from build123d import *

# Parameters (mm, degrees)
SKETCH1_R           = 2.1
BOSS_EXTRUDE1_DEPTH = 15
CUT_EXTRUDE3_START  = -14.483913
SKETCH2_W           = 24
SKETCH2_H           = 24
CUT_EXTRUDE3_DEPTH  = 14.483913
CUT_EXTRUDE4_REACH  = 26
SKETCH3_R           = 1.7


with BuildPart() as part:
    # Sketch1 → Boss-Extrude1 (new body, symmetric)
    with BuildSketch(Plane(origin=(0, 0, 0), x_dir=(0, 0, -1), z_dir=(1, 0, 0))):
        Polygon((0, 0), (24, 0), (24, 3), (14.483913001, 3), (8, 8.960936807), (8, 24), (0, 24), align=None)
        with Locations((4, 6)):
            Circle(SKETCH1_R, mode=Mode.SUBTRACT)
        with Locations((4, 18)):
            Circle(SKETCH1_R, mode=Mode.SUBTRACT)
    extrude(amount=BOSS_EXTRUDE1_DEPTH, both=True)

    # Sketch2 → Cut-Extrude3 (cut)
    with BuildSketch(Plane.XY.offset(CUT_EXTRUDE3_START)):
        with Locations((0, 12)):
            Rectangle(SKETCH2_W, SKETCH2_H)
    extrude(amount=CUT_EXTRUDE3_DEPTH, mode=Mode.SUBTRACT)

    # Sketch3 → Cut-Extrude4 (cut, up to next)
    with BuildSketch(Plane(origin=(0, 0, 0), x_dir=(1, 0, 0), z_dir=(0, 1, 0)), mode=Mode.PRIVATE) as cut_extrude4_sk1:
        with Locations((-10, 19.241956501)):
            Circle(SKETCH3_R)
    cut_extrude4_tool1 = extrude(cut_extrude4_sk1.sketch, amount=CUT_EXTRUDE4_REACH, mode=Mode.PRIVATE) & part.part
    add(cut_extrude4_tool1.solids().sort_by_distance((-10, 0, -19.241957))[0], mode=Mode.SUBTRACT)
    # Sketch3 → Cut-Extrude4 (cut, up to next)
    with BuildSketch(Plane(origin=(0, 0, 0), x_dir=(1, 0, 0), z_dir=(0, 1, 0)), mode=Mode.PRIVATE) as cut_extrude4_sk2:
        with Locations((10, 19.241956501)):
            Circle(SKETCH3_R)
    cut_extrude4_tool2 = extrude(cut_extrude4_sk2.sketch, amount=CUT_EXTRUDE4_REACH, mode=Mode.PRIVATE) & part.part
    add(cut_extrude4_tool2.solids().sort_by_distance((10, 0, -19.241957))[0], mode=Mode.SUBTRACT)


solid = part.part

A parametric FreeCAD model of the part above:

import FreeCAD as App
import Part
import Sketcher


def add_polygon(sketch, points):
    """Adds a closed chain of lines whose ends are joined by coincident constraints."""
    first, n = sketch.GeometryCount, len(points)
    for a, b in zip(points, points[1:] + points[:1]):
        sketch.addGeometry(Part.LineSegment(App.Vector(*a, 0), App.Vector(*b, 0)), False)
    for i in range(n):
        sketch.addConstraint(Sketcher.Constraint("Coincident", first + i, 2, first + (i + 1) % n, 1))

doc = App.newDocument("Part")
body = doc.addObject("PartDesign::Body", "Body")

sketch1 = body.newObject("Sketcher::SketchObject", "Sketch")
sketch1.AttachmentSupport = (doc.getObject("YZ_Plane"), [""])
sketch1.MapMode = "FlatFace"
add_polygon(sketch1, [(0, 0), (0, -24), (3, -24), (3, -14.5), (9, -8), (24, -8), (24, 0)])
sketch1.addGeometry(Part.Circle(App.Vector(6, -4, 0), App.Vector(0, 0, 1), 2.1), False)
sketch1.addGeometry(Part.Circle(App.Vector(18, -4, 0), App.Vector(0, 0, 1), 2.1), False)
sketch1.addConstraint(Sketcher.Constraint("Vertical", 0))
sketch1.addConstraint(Sketcher.Constraint("Horizontal", 1))
sketch1.addConstraint(Sketcher.Constraint("Vertical", 2))
sketch1.addConstraint(Sketcher.Constraint("Horizontal", 4))
sketch1.addConstraint(Sketcher.Constraint("Vertical", 5))
sketch1.addConstraint(Sketcher.Constraint("Horizontal", 6))
sketch1.addConstraint(Sketcher.Constraint("Coincident", 6, 2, -1, 1))
sketch1.addConstraint(Sketcher.Constraint("Equal", 7, 8))
sketch1.addConstraint(Sketcher.Constraint("Horizontal", 7, 3, 8, 3))
sketch1.addConstraint(Sketcher.Constraint("Equal", 6, 0))
sketch1.addConstraint(Sketcher.Constraint("Diameter", 7, 4.2))
sketch1.addConstraint(Sketcher.Constraint("DistanceX", 1, 1, 1, 2, 3.0))
sketch1.addConstraint(Sketcher.Constraint("DistanceX", 6, 2, 6, 1, 24.0))
sketch1.addConstraint(Sketcher.Constraint("DistanceY", 5, 1, 5, 2, 8.0))
sketch1.addConstraint(Sketcher.Constraint("DistanceX", -1, 1, 7, 3, 6.0))
sketch1.addConstraint(Sketcher.Constraint("DistanceY", 7, 3, -1, 1, 4.0))
sketch1.addConstraint(Sketcher.Constraint("DistanceX", -1, 1, 8, 3, 18.0))
sketch1.addConstraint(Sketcher.Constraint("DistanceX", 4, 1, 4, 2, 15.039063))
sketch1.addConstraint(Sketcher.Constraint("DistanceY", 2, 1, 2, 2, 9.516087))
pad1 = body.newObject("PartDesign::Pad", "Pad")
pad1.Profile = sketch1
pad1.Length = 30
pad1.Midplane = True

sketch2 = body.newObject("Sketcher::SketchObject", "Sketch001")
sketch2.AttachmentSupport = (doc.getObject("XY_Plane"), [""])
sketch2.MapMode = "FlatFace"
sketch2.AttachmentOffset = App.Placement(App.Vector(0, 0, -14.483913), App.Rotation())
add_polygon(sketch2, [(-12, 24), (-12, 0), (12, 0), (12, 24)])
sketch2.addConstraint(Sketcher.Constraint("Vertical", 0))
sketch2.addConstraint(Sketcher.Constraint("Horizontal", 1))
sketch2.addConstraint(Sketcher.Constraint("Vertical", 2))
sketch2.addConstraint(Sketcher.Constraint("Horizontal", 3))
sketch2.addConstraint(Sketcher.Constraint("Symmetric", 0, 2, 1, 2, -1, 1))
sketch2.addConstraint(Sketcher.Constraint("Equal", 3, 0))
sketch2.addConstraint(Sketcher.Constraint("DistanceX", 1, 1, 1, 2, 24.0))
pocket1 = body.newObject("PartDesign::Pocket", "Pocket")
pocket1.Profile = sketch2
pocket1.Length = 14.483913
pocket1.Reversed = True

sketch3 = body.newObject("Sketcher::SketchObject", "Sketch002")
sketch3.AttachmentSupport = (doc.getObject("XZ_Plane"), [""])
sketch3.MapMode = "FlatFace"
sketch3.addGeometry(Part.Circle(App.Vector(-10, -19.2, 0), App.Vector(0, 0, 1), 1.7), False)
sketch3.addConstraint(Sketcher.Constraint("Diameter", 0, 3.4))
sketch3.addConstraint(Sketcher.Constraint("DistanceX", 0, 3, -1, 1, 10.0))
sketch3.addConstraint(Sketcher.Constraint("DistanceY", 0, 3, -1, 1, 19.241957))
pocket2 = body.newObject("PartDesign::Pocket", "Pocket001")
pocket2.Profile = sketch3
pocket2.Type = "UpToFirst"

sketch4 = body.newObject("Sketcher::SketchObject", "Sketch003")
sketch4.AttachmentSupport = (doc.getObject("XZ_Plane"), [""])
sketch4.MapMode = "FlatFace"
sketch4.addGeometry(Part.Circle(App.Vector(10, -19.2, 0), App.Vector(0, 0, 1), 1.7), False)
sketch4.addConstraint(Sketcher.Constraint("Diameter", 0, 3.4))
sketch4.addConstraint(Sketcher.Constraint("DistanceX", -1, 1, 0, 3, 10.0))
sketch4.addConstraint(Sketcher.Constraint("DistanceY", 0, 3, -1, 1, 19.241957))
pocket3 = body.newObject("PartDesign::Pocket", "Pocket002")
pocket3.Profile = sketch4
pocket3.Type = "UpToFirst"

doc.recompute()
